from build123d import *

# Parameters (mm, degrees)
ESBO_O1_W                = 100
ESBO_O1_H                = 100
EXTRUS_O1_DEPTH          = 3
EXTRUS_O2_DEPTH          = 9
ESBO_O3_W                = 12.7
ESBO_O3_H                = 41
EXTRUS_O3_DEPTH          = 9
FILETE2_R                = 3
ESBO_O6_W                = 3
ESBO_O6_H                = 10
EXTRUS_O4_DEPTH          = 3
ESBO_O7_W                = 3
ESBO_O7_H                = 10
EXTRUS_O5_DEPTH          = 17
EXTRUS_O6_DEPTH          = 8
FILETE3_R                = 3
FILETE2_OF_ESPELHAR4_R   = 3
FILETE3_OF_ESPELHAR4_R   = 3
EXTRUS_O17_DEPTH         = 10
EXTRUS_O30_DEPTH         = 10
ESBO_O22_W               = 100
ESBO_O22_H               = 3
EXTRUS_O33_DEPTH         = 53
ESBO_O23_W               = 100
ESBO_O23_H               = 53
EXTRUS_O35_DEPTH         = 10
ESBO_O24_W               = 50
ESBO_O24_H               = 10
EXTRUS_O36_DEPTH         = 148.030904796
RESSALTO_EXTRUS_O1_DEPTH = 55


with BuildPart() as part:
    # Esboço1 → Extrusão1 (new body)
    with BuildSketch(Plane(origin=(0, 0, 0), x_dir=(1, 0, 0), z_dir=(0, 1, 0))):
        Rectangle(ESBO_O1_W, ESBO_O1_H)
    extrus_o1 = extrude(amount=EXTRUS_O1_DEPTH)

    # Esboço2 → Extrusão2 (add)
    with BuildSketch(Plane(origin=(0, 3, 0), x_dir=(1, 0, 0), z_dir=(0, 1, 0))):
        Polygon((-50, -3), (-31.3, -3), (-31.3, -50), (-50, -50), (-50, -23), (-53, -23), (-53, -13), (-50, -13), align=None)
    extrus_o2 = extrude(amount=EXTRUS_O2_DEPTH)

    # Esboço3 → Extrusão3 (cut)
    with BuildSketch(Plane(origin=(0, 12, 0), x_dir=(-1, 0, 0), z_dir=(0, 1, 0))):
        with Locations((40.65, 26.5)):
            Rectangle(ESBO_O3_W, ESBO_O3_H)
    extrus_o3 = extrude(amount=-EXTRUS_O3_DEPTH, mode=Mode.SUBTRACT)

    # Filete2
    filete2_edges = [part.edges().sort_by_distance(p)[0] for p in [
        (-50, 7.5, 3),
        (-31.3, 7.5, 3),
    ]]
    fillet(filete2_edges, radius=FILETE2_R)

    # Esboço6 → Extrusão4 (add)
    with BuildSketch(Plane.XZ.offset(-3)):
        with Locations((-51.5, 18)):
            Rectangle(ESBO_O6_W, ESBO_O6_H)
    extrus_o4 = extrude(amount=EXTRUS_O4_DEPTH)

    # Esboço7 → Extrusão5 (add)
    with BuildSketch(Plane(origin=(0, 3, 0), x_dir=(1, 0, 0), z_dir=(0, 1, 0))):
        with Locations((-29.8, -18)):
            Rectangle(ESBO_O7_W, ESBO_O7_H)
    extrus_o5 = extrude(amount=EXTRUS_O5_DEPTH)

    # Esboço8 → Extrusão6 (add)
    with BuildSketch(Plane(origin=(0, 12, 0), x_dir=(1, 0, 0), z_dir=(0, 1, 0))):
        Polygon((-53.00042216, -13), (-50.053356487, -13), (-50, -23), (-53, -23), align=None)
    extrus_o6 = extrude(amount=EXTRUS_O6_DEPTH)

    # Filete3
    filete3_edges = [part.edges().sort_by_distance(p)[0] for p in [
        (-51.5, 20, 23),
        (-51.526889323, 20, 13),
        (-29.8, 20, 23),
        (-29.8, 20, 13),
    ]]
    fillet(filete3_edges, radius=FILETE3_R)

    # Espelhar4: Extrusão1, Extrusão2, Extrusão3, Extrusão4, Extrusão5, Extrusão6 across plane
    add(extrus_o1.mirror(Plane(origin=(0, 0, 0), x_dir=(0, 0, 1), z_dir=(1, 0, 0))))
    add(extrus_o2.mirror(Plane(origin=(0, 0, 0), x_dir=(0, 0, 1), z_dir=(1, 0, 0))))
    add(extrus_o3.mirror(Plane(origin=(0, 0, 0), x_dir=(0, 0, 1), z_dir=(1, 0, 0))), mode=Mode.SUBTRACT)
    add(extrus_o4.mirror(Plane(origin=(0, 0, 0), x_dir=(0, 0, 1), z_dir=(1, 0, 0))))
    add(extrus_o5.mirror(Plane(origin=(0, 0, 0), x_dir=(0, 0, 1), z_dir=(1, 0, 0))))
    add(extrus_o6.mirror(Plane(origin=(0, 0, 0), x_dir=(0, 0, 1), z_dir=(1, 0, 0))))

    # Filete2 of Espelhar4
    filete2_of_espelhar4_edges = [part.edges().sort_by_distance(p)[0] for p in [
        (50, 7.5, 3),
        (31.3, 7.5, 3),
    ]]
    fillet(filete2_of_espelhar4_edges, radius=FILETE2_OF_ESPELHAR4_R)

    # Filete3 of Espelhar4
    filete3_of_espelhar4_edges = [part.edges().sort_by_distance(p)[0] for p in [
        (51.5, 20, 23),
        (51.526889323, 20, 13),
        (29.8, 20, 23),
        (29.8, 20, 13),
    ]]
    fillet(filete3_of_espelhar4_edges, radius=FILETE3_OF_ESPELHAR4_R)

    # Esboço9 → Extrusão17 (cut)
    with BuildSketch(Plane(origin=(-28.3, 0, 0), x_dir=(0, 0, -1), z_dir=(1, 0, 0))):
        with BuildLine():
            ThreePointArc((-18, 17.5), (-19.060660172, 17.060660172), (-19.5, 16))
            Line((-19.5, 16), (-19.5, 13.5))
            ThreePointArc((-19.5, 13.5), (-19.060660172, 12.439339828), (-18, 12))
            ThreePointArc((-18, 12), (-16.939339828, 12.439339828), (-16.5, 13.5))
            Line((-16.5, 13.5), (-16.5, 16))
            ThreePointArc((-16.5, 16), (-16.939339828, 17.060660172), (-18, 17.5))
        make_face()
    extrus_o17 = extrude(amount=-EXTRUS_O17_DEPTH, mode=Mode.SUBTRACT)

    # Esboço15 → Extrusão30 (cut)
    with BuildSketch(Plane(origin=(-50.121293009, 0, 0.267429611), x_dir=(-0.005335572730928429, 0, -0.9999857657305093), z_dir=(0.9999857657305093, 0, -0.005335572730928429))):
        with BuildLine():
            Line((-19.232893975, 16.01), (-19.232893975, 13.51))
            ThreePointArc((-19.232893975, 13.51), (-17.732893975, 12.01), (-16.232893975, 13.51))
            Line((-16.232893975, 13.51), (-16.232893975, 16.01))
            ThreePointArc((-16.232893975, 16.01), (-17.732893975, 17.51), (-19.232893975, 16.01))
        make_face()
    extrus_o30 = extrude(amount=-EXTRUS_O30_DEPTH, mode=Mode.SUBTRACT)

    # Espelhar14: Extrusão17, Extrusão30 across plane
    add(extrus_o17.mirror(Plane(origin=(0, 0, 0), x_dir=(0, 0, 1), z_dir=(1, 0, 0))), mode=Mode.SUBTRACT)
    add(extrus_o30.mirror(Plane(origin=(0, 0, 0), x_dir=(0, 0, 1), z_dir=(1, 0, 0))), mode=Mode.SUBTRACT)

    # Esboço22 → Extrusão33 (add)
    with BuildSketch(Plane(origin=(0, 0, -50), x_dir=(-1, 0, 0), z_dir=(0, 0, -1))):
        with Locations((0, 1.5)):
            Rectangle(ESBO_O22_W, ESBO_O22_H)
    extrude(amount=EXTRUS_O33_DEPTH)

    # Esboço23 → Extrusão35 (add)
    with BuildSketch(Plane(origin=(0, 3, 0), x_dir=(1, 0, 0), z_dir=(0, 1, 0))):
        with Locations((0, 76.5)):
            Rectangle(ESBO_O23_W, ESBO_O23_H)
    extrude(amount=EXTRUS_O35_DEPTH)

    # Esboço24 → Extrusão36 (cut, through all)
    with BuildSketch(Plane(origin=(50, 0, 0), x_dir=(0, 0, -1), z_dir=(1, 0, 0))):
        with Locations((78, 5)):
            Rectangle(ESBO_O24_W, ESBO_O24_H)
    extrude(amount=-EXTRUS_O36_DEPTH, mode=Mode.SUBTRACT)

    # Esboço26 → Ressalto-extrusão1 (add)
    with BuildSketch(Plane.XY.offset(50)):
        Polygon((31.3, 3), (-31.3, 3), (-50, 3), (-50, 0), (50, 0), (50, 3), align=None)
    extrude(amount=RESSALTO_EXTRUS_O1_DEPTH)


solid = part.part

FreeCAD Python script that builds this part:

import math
import FreeCAD as App
import Part
import Sketcher
from FreeCAD import Vector
Q = App.Units.Quantity


def edges_at(feature, points):
    """Names of the edges that pass closest to the given points."""
    edges = feature.Shape.Edges
    near = lambda p: min(range(len(edges)), key=lambda i: edges[i].distToShape(Part.Vertex(*p))[0])
    return sorted({f"Edge{near(p) + 1}" for p in points})


def add_polygon(sketch, points):
    """Adds a closed chain of lines whose ends are joined by coincident constraints."""
    first, n = sketch.GeometryCount, len(points)
    for a, b in zip(points, points[1:] + points[:1]):
        sketch.addGeometry(Part.LineSegment(App.Vector(*a, 0), App.Vector(*b, 0)), False)
    for i in range(n):
        sketch.addConstraint(Sketcher.Constraint("Coincident", first + i, 2, first + (i + 1) % n, 1))

doc = App.newDocument("Part")
body = doc.addObject("PartDesign::Body", "Body")

# Sketch on XZ plane
sketch1 = doc.addObject("Sketcher::SketchObject", "Sketch")
body.addObject(sketch1)
sketch1.AttachmentSupport = (doc.XZ_Plane, [""])
sketch1.MapMode = "FlatFace"
add_polygon(sketch1, [(-50, -50), (-50, 50), (50, 50), (50, -50)])  # lines 0-3
sketch1.addConstraint(Sketcher.Constraint("Vertical", 0))
sketch1.addConstraint(Sketcher.Constraint("Horizontal", 1))
sketch1.addConstraint(Sketcher.Constraint("Vertical", 2))
sketch1.addConstraint(Sketcher.Constraint("Horizontal", 3))
sketch1.addConstraint(Sketcher.Constraint("Symmetric", 0, 2, 2, 2, -1, 1))
sketch1.addConstraint(Sketcher.Constraint("Equal", 3, 0))
sketch1.addConstraint(Sketcher.Constraint("DistanceX", 1, 1, 1, 2, Q("100 mm")))
pad1 = doc.addObject("PartDesign::Pad", "Pad")
body.addObject(pad1)
pad1.Profile = sketch1
pad1.Length = 3
pad1.Reversed = True

# Sketch on XZ plane
sketch2 = doc.addObject("Sketcher::SketchObject", "Sketch001")
body.addObject(sketch2)
sketch2.AttachmentSupport = (doc.XZ_Plane, [""])
sketch2.MapMode = "FlatFace"
sketch2.AttachmentOffset = App.Placement(Vector(0, 0, -3), App.Rotation())
add_polygon(sketch2, [(-31.3, 3), (-50, 3), (-50, 13), (-53, 13), (-53, 23), (-50, 23), (-50, 50), (-31.3, 50)])  # lines 0-7
sketch2.addConstraint(Sketcher.Constraint("Horizontal", 0))
sketch2.addConstraint(Sketcher.Constraint("Vertical", 1))
sketch2.addConstraint(Sketcher.Constraint("Horizontal", 2))
sketch2.addConstraint(Sketcher.Constraint("Vertical", 3))
sketch2.addConstraint(Sketcher.Constraint("Horizontal", 4))
sketch2.addConstraint(Sketcher.Constraint("Vertical", 5))
sketch2.addConstraint(Sketcher.Constraint("Horizontal", 6))
sketch2.addConstraint(Sketcher.Constraint("Vertical", 7))
sketch2.addConstraint(Sketcher.Constraint("Vertical", 1, 2, 4, 2))
sketch2.addConstraint(Sketcher.Constraint("Equal", 1, 3))
sketch2.addConstraint(Sketcher.Constraint("DistanceX", 2, 2, 2, 1, Q("3 mm")))
sketch2.addConstraint(Sketcher.Constraint("DistanceY", 1, 1, 1, 2, Q("10 mm")))
sketch2.addConstraint(Sketcher.Constraint("DistanceY", 5, 1, 5, 2, Q("27 mm")))
sketch2.addConstraint(Sketcher.Constraint("DistanceX", 0, 2, 0, 1, Q("18.7 mm")))
sketch2.addConstraint(Sketcher.Constraint("DistanceX", 0, 2, -1, 1, Q("50 mm")))
sketch2.addConstraint(Sketcher.Constraint("DistanceY", -1, 1, 0, 2, Q("3 mm")))
pad2 = doc.addObject("PartDesign::Pad", "Pad001")
body.addObject(pad2)
pad2.Profile = sketch2
pad2.Length = 9
pad2.Reversed = True

# Sketch on XZ plane
sketch3 = doc.addObject("Sketcher::SketchObject", "Sketch002")
body.addObject(sketch3)
sketch3.AttachmentSupport = (doc.XZ_Plane, [""])
sketch3.MapMode = "FlatFace"
sketch3.AttachmentOffset = App.Placement(Vector(0, 0, -12), App.Rotation())
add_polygon(sketch3, [(-34, 47), (-34, 6), (-47, 6), (-47, 47)])  # lines 0-3
sketch3.addConstraint(Sketcher.Constraint("Vertical", 0))
sketch3.addConstraint(Sketcher.Constraint("Horizontal", 1))
sketch3.addConstraint(Sketcher.Constraint("Vertical", 2))
sketch3.addConstraint(Sketcher.Constraint("Horizontal", 3))
sketch3.addConstraint(Sketcher.Constraint("DistanceY", 0, 2, 0, 1, Q("41 mm")))
sketch3.addConstraint(Sketcher.Constraint("DistanceX", 1, 2, 1, 1, Q("12.7 mm")))
sketch3.addConstraint(Sketcher.Constraint("DistanceY", -1, 1, 0, 2, Q("6 mm")))
sketch3.addConstraint(Sketcher.Constraint("DistanceX", 1, 2, -1, 1, Q("47 mm")))
pocket1 = doc.addObject("PartDesign::Pocket", "Pocket")
body.addObject(pocket1)
pocket1.Profile = sketch3
pocket1.Length = 9
pocket1.Reversed = True
doc.recompute()

fillet = doc.addObject("PartDesign::Fillet", "Fillet")
body.addObject(fillet)
fillet.Base = (pocket1, edges_at(pocket1, [(-50, 7.5, 3), (-31.3, 7.5, 3)]))
fillet.Radius = 3

# Sketch on XZ plane
sketch4 = doc.addObject("Sketcher::SketchObject", "Sketch003")
body.addObject(sketch4)
sketch4.AttachmentSupport = (doc.XZ_Plane, [""])
sketch4.MapMode = "FlatFace"
sketch4.AttachmentOffset = App.Placement(Vector(0, 0, -3), App.Rotation())
add_polygon(sketch4, [(-53, 23), (-53, 13), (-50, 13), (-50, 23)])  # lines 0-3
sketch4.addConstraint(Sketcher.Constraint("Vertical", 0))
sketch4.addConstraint(Sketcher.Constraint("Horizontal", 1))
sketch4.addConstraint(Sketcher.Constraint("Vertical", 2))
sketch4.addConstraint(Sketcher.Constraint("Horizontal", 3))
sketch4.addConstraint(Sketcher.Constraint("DistanceX", 1, 1, 1, 2, Q("3 mm")))
sketch4.addConstraint(Sketcher.Constraint("DistanceY", 0, 2, 0, 1, Q("10 mm")))
sketch4.addConstraint(Sketcher.Constraint("DistanceX", 0, 2, -1, 1, Q("53 mm")))
sketch4.addConstraint(Sketcher.Constraint("DistanceY", -1, 1, 0, 2, Q("13 mm")))
pad3 = doc.addObject("PartDesign::Pad", "Pad002")
body.addObject(pad3)
pad3.Profile = sketch4
pad3.Length = 3

# Sketch on XZ plane
sketch5 = doc.addObject("Sketcher::SketchObject", "Sketch004")
body.addObject(sketch5)
sketch5.AttachmentSupport = (doc.XZ_Plane, [""])
sketch5.MapMode = "FlatFace"
sketch5.AttachmentOffset = App.Placement(Vector(0, 0, -3), App.Rotation())
add_polygon(sketch5, [(-31.3, 13), (-31.3, 23), (-28.3, 23), (-28.3, 13)])  # lines 0-3
sketch5.addConstraint(Sketcher.Constraint("Vertical", 0))
sketch5.addConstraint(Sketcher.Constraint("Horizontal", 1))
sketch5.addConstraint(Sketcher.Constraint("Vertical", 2))
sketch5.addConstraint(Sketcher.Constraint("Horizontal", 3))
sketch5.addConstraint(Sketcher.Constraint("DistanceX", 1, 1, 1, 2, Q("3 mm")))
sketch5.addConstraint(Sketcher.Constraint("DistanceY", 0, 1, 0, 2, Q("10 mm")))
sketch5.addConstraint(Sketcher.Constraint("DistanceY", -1, 1, 0, 2, Q("23 mm")))
sketch5.addConstraint(Sketcher.Constraint("DistanceX", 0, 2, -1, 1, Q("31.3 mm")))
pad4 = doc.addObject("PartDesign::Pad", "Pad003")
body.addObject(pad4)
pad4.Profile = sketch5
pad4.Length = 17
pad4.Reversed = True

# Sketch on XZ plane
sketch6 = doc.addObject("Sketcher::SketchObject", "Sketch005")
body.addObject(sketch6)
sketch6.AttachmentSupport = (doc.XZ_Plane, [""])
sketch6.MapMode = "FlatFace"
sketch6.AttachmentOffset = App.Placement(Vector(0, 0, -12), App.Rotation())
add_polygon(sketch6, [(-50.1, 13), (-53, 13), (-53, 23), (-50, 23)])  # lines 0-3
sketch6.addConstraint(Sketcher.Constraint("Horizontal", 0))
sketch6.addConstraint(Sketcher.Constraint("Horizontal", 2))
sketch6.addConstraint(Sketcher.Constraint("DistanceX", 2, 1, 2, 2, Q("3 mm")))
sketch6.addConstraint(Sketcher.Constraint("Distance", 1, Q("10 mm")))
sketch6.addConstraint(Sketcher.Constraint("DistanceY", -1, 1, 0, 2, Q("13 mm")))
sketch6.addConstraint(Sketcher.Constraint("DistanceX", 1, 2, -1, 1, Q("53 mm")))
sketch6.addConstraint(Sketcher.Constraint("DistanceX", 0, 2, 0, 1, Q("2.947066 mm")))
sketch6.addConstraint(Sketcher.Constraint("DistanceX", 0, 2, -1, 1, Q("53.000422 mm")))
pad5 = doc.addObject("PartDesign::Pad", "Pad004")
body.addObject(pad5)
pad5.Profile = sketch6
pad5.Length = 8
pad5.Reversed = True
doc.recompute()

fillet2 = doc.addObject("PartDesign::Fillet", "Fillet001")
body.addObject(fillet2)
fillet2.Base = (pad5, edges_at(pad5, [
    (-51.5, 20, 23),
    (-51.527, 20, 13),
    (-29.8, 20, 23),
    (-29.8, 20, 13),
]))
fillet2.Radius = 3
doc.recompute()

mirrored = doc.addObject("PartDesign::Mirrored", "Mirrored")
body.addObject(mirrored)
mirrored.Originals = [pad1, pad2, pocket1, pad3, pad4, pad5]
mirrored.MirrorPlane = (doc.YZ_Plane, [""])
body.Tip = mirrored
doc.recompute()

fillet3 = doc.addObject("PartDesign::Fillet", "Fillet002")
body.addObject(fillet3)
fillet3.Base = (mirrored, edges_at(mirrored, [(50, 7.5, 3), (31.3, 7.5, 3)]))
fillet3.Radius = 3
doc.recompute()

fillet4 = doc.addObject("PartDesign::Fillet", "Fillet003")
body.addObject(fillet4)
fillet4.Base = (fillet3, edges_at(fillet3, [
    (51.5, 20, 23),
    (51.527, 20, 13),
    (29.8, 20, 23),
    (29.8, 20, 13),
]))
fillet4.Radius = 3

# Sketch on YZ plane
sketch7 = doc.addObject("Sketcher::SketchObject", "Sketch006")
body.addObject(sketch7)
sketch7.AttachmentSupport = (doc.YZ_Plane, [""])
sketch7.MapMode = "FlatFace"
sketch7.AttachmentOffset = App.Placement(Vector(0, 0, -28.3), App.Rotation())
sketch7.addGeometry(Part.ArcOfCircle(Part.Circle(Vector(16, 18, 0), Vector(0, 0, 1), 1.5), math.radians(0), math.radians(90)), False)
sketch7.addGeometry(Part.LineSegment(Vector(16, 19.5, 0), Vector(13.5, 19.5, 0)), False)
sketch7.addGeometry(Part.ArcOfCircle(Part.Circle(Vector(13.5, 18, 0), Vector(0, 0, 1), 1.5), math.radians(90), math.radians(180)), False)
sketch7.addGeometry(Part.ArcOfCircle(Part.Circle(Vector(13.5, 18, 0), Vector(0, 0, 1), 1.5), math.radians(180), math.radians(270)), False)
sketch7.addGeometry(Part.LineSegment(Vector(13.5, 16.5, 0), Vector(16, 16.5, 0)), False)
sketch7.addGeometry(Part.ArcOfCircle(Part.Circle(Vector(16, 18, 0), Vector(0, 0, 1), 1.5), math.radians(-90), math.radians(0)), False)
sketch7.addConstraint(Sketcher.Constraint("Tangent", 0, 2, 1, 1))
sketch7.addConstraint(Sketcher.Constraint("Tangent", 1, 2, 2, 1))
sketch7.addConstraint(Sketcher.Constraint("Tangent", 2, 2, 3, 1))
sketch7.addConstraint(Sketcher.Constraint("Tangent", 3, 2, 4, 1))
sketch7.addConstraint(Sketcher.Constraint("Tangent", 4, 2, 5, 1))
sketch7.addConstraint(Sketcher.Constraint("Tangent", 5, 2, 0, 1))
sketch7.addConstraint(Sketcher.Constraint("Horizontal", 1))
sketch7.addConstraint(Sketcher.Constraint("Horizontal", 4))
sketch7.addConstraint(Sketcher.Constraint("Equal", 0, 2))
sketch7.addConstraint(Sketcher.Constraint("Equal", 2, 3))
sketch7.addConstraint(Sketcher.Constraint("Horizontal", 5, 3, 2, 2))
sketch7.addConstraint(Sketcher.Constraint("Horizontal", 2, 2, 5, 2))
sketch7.addConstraint(Sketcher.Constraint("Radius", 0, Q("1.5 mm")))
sketch7.addConstraint(Sketcher.Constraint("DistanceX", 1, 2, 1, 1, Q("2.5 mm")))
sketch7.addConstraint(Sketcher.Constraint("DistanceX", -1, 1, 0, 3, Q("16 mm")))
sketch7.addConstraint(Sketcher.Constraint("DistanceY", -1, 1, 0, 3, Q("18 mm")))
pocket2 = doc.addObject("PartDesign::Pocket", "Pocket001")
body.addObject(pocket2)
pocket2.Profile = sketch7
pocket2.Length = 10

# Sketch on an angled plane
sketch8 = doc.addObject("Sketcher::SketchObject", "Sketch007")
body.addObject(sketch8)
sketch8.Placement = App.Placement(Vector(-50.121293, 0, 0.26743), App.Rotation(Vector(-0.005335573, 0, -0.999985766), Vector(0, 1.000000001, 0), Vector(0.999985766, 0, -0.005335573), "ZXY"))
sketch8.addGeometry(Part.LineSegment(Vector(-19.2, 16, 0), Vector(-19.2, 13.5, 0)), False)
sketch8.addGeometry(Part.ArcOfCircle(Part.Circle(Vector(-17.7, 13.5, 0), Vector(0, 0, 1), 1.5), math.radians(180), math.radians(360)), False)
sketch8.addGeometry(Part.LineSegment(Vector(-16.2, 13.5, 0), Vector(-16.2, 16, 0)), False)
sketch8.addGeometry(Part.ArcOfCircle(Part.Circle(Vector(-17.7, 16, 0), Vector(0, 0, 1), 1.5), math.radians(0), math.radians(180)), False)
sketch8.addConstraint(Sketcher.Constraint("Tangent", 0, 2, 1, 1))
sketch8.addConstraint(Sketcher.Constraint("Tangent", 1, 2, 2, 1))
sketch8.addConstraint(Sketcher.Constraint("Tangent", 2, 2, 3, 1))
sketch8.addConstraint(Sketcher.Constraint("Tangent", 3, 2, 0, 1))
sketch8.addConstraint(Sketcher.Constraint("Vertical", 0))
sketch8.addConstraint(Sketcher.Constraint("Vertical", 2))
sketch8.addConstraint(Sketcher.Constraint("Radius", 1, Q("1.5 mm")))
sketch8.addConstraint(Sketcher.Constraint("DistanceY", 0, 2, 0, 1, Q("2.5 mm")))
sketch8.addConstraint(Sketcher.Constraint("DistanceY", -1, 1, 1, 3, Q("13.51 mm")))
sketch8.addConstraint(Sketcher.Constraint("DistanceX", 1, 3, -1, 1, Q("17.732894 mm")))
pocket3 = doc.addObject("PartDesign::Pocket", "Pocket002")
body.addObject(pocket3)
pocket3.Profile = sketch8
pocket3.Length = 10
doc.recompute()

mirrored2 = doc.addObject("PartDesign::Mirrored", "Mirrored001")
body.addObject(mirrored2)
mirrored2.Originals = [pocket2, pocket3]
mirrored2.MirrorPlane = (doc.YZ_Plane, [""])
body.Tip = mirrored2

# Sketch on XY plane
sketch9 = doc.addObject("Sketcher::SketchObject", "Sketch008")
body.addObject(sketch9)
sketch9.AttachmentSupport = (doc.XY_Plane, [""])
sketch9.MapMode = "FlatFace"
sketch9.AttachmentOffset = App.Placement(Vector(0, 0, -50), App.Rotation())
add_polygon(sketch9, [(50, 3), (50, 0), (-50, 0), (-50, 3)])  # lines 0-3
sketch9.addConstraint(Sketcher.Constraint("Vertical", 0))
sketch9.addConstraint(Sketcher.Constraint("Horizontal", 1))
sketch9.addConstraint(Sketcher.Constraint("Vertical", 2))
sketch9.addConstraint(Sketcher.Constraint("Horizontal", 3))
sketch9.addConstraint(Sketcher.Constraint("Symmetric", 0, 2, 1, 2, -1, 1))
sketch9.addConstraint(Sketcher.Constraint("DistanceX", 1, 2, 1, 1, Q("100 mm")))
sketch9.addConstraint(Sketcher.Constraint("DistanceY", 0, 2, 0, 1, Q("3 mm")))
pad6 = doc.addObject("PartDesign::Pad", "Pad005")
body.addObject(pad6)
pad6.Profile = sketch9
pad6.Length = 53
pad6.Reversed = True

# Sketch on XZ plane
sketch10 = doc.addObject("Sketcher::SketchObject", "Sketch009")
body.addObject(sketch10)
sketch10.AttachmentSupport = (doc.XZ_Plane, [""])
sketch10.MapMode = "FlatFace"
sketch10.AttachmentOffset = App.Placement(Vector(0, 0, -3), App.Rotation())
add_polygon(sketch10, [(-50, -103), (-50, -50), (50, -50), (50, -103)])  # lines 0-3
sketch10.addConstraint(Sketcher.Constraint("Vertical", 0))
sketch10.addConstraint(Sketcher.Constraint("Horizontal", 1))
sketch10.addConstraint(Sketcher.Constraint("Vertical", 2))
sketch10.addConstraint(Sketcher.Constraint("Horizontal", 3))
sketch10.addConstraint(Sketcher.Constraint("DistanceX", 1, 1, 1, 2, Q("100 mm")))
sketch10.addConstraint(Sketcher.Constraint("DistanceY", 0, 1, 0, 2, Q("53 mm")))
sketch10.addConstraint(Sketcher.Constraint("DistanceX", 0, 2, -1, 1, Q("50 mm")))
sketch10.addConstraint(Sketcher.Constraint("DistanceY", 0, 2, -1, 1, Q("50 mm")))
pad7 = doc.addObject("PartDesign::Pad", "Pad006")
body.addObject(pad7)
pad7.Profile = sketch10
pad7.Length = 10
pad7.Reversed = True

# Sketch on YZ plane
sketch11 = doc.addObject("Sketcher::SketchObject", "Sketch010")
body.addObject(sketch11)
sketch11.AttachmentSupport = (doc.YZ_Plane, [""])
sketch11.MapMode = "FlatFace"
sketch11.AttachmentOffset = App.Placement(Vector(0, 0, 50), App.Rotation())
add_polygon(sketch11, [(10, -53), (0, -53), (0, -103), (10, -103)])  # lines 0-3
sketch11.addConstraint(Sketcher.Constraint("Horizontal", 0))
sketch11.addConstraint(Sketcher.Constraint("Vertical", 1))
sketch11.addConstraint(Sketcher.Constraint("Horizontal", 2))
sketch11.addConstraint(Sketcher.Constraint("Vertical", 3))
sketch11.addConstraint(Sketcher.Constraint("PointOnObject", 0, 2, -2))
sketch11.addConstraint(Sketcher.Constraint("DistanceX", 0, 2, 0, 1, Q("10 mm")))
sketch11.addConstraint(Sketcher.Constraint("DistanceY", 1, 2, 1, 1, Q("50 mm")))
sketch11.addConstraint(Sketcher.Constraint("DistanceY", 0, 2, -1, 1, Q("53 mm")))
pocket4 = doc.addObject("PartDesign::Pocket", "Pocket003")
body.addObject(pocket4)
pocket4.Profile = sketch11
pocket4.Type = "ThroughAll"

# Sketch on XY plane
sketch12 = doc.addObject("Sketcher::SketchObject", "Sketch011")
body.addObject(sketch12)
sketch12.AttachmentSupport = (doc.XY_Plane, [""])
sketch12.MapMode = "FlatFace"
sketch12.AttachmentOffset = App.Placement(Vector(0, 0, 50), App.Rotation())
add_polygon(sketch12, [(-50, 3), (-50, 0), (50, 0), (50, 3)])  # lines 0-3
sketch12.addConstraint(Sketcher.Constraint("Vertical", 0))
sketch12.addConstraint(Sketcher.Constraint("Horizontal", 1))
sketch12.addConstraint(Sketcher.Constraint("Vertical", 2))
sketch12.addConstraint(Sketcher.Constraint("Horizontal", 3))
sketch12.addConstraint(Sketcher.Constraint("Symmetric", 0, 2, 1, 2, -1, 1))
sketch12.addConstraint(Sketcher.Constraint("DistanceX", 1, 1, 1, 2, Q("100 mm")))
sketch12.addConstraint(Sketcher.Constraint("DistanceY", 0, 2, 0, 1, Q("3 mm")))
pad8 = doc.addObject("PartDesign::Pad", "Pad007")
body.addObject(pad8)
pad8.Profile = sketch12
pad8.Length = 55

doc.recompute()
